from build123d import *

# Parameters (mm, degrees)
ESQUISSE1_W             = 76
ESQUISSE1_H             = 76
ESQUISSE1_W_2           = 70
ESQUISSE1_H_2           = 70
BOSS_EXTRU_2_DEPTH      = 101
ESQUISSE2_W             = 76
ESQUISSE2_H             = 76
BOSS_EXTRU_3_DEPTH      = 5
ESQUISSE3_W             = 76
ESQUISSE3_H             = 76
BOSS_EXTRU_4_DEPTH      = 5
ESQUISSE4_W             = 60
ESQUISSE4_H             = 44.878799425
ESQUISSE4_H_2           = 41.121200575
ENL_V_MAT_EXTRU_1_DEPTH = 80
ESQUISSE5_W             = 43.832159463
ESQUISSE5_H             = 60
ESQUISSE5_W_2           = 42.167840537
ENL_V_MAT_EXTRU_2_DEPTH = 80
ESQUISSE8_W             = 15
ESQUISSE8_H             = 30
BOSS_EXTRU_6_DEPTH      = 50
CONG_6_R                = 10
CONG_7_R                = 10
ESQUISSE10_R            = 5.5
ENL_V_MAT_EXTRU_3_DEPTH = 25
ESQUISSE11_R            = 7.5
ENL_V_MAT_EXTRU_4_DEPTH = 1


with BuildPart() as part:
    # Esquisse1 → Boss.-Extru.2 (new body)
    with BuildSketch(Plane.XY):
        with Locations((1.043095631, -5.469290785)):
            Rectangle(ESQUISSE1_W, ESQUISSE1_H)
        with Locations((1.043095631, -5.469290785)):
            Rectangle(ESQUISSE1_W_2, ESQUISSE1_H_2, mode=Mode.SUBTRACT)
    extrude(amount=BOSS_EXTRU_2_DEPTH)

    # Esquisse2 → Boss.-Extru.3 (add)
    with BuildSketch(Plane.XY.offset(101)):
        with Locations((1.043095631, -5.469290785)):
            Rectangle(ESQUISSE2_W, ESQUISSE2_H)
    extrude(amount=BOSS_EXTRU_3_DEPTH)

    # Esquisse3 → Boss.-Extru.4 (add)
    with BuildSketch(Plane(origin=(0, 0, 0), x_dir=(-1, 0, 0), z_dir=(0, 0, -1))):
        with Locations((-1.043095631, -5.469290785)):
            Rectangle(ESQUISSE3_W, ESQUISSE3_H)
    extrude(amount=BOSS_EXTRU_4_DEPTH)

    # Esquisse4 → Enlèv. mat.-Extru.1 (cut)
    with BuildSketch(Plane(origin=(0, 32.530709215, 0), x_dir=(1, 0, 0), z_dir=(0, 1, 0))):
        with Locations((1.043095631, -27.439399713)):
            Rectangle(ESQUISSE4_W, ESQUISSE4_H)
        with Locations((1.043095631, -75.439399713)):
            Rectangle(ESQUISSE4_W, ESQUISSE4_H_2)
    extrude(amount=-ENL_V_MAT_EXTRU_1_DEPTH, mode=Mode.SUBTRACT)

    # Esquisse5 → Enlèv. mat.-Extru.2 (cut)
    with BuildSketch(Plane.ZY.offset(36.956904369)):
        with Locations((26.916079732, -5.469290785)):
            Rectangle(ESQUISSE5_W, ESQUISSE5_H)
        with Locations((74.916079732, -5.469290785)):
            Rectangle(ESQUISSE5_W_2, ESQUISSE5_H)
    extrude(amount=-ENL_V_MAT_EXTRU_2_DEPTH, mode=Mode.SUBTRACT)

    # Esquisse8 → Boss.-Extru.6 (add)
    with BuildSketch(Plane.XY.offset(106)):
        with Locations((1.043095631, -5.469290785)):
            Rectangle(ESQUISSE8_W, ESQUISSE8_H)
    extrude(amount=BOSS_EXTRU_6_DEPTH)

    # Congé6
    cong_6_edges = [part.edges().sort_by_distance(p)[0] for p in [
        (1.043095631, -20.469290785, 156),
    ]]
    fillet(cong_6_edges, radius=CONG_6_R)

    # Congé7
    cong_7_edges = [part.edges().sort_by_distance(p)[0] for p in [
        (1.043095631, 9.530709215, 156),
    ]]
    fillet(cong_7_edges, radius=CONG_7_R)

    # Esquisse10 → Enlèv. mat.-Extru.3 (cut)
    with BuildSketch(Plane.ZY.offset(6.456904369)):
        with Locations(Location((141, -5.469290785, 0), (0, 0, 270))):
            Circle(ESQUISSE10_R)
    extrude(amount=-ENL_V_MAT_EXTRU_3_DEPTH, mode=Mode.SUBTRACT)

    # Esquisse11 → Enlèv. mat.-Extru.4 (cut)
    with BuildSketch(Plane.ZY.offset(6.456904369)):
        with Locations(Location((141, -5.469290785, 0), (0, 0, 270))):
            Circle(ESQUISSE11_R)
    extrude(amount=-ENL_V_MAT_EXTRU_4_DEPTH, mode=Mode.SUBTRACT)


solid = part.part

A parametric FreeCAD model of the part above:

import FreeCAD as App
import Part
import Sketcher


def edges_at(feature, points):
    """Names of the edges that pass closest to the given points."""
    edges = feature.Shape.Edges
    near = lambda p: min(range(len(edges)), key=lambda i: edges[i].distToShape(Part.Vertex(*p))[0])
    return sorted({f"Edge{near(p) + 1}" for p in points})


def add_polygon(sketch, points):
    """Adds a closed chain of lines whose ends are joined by coincident constraints."""
    first, n = sketch.GeometryCount, len(points)
    for a, b in zip(points, points[1:] + points[:1]):
        sketch.addGeometry(Part.LineSegment(App.Vector(*a, 0), App.Vector(*b, 0)), False)
    for i in range(n):
        sketch.addConstraint(Sketcher.Constraint("Coincident", first + i, 2, first + (i + 1) % n, 1))

doc = App.newDocument("Part")
body = doc.addObject("PartDesign::Body", "Body")

sketch1 = body.newObject("Sketcher::SketchObject", "Sketch")
sketch1.AttachmentSupport = (doc.getObject("XY_Plane"), [""])
sketch1.MapMode = "FlatFace"
add_polygon(sketch1, [(-37, 33), (-37, -43), (39, -43), (39, 33)])
add_polygon(sketch1, [(36, -40), (-34, -40), (-34, 30), (36, 30)])
sketch1.addConstraint(Sketcher.Constraint("Vertical", 0))
sketch1.addConstraint(Sketcher.Constraint("Horizontal", 1))
sketch1.addConstraint(Sketcher.Constraint("Vertical", 2))
sketch1.addConstraint(Sketcher.Constraint("Horizontal", 3))
sketch1.addConstraint(Sketcher.Constraint("Horizontal", 4))
sketch1.addConstraint(Sketcher.Constraint("Vertical", 5))
sketch1.addConstraint(Sketcher.Constraint("Horizontal", 6))
sketch1.addConstraint(Sketcher.Constraint("Vertical", 7))
sketch1.addConstraint(Sketcher.Constraint("Equal", 3, 0))
sketch1.addConstraint(Sketcher.Constraint("Equal", 6, 5))
sketch1.addConstraint(Sketcher.Constraint("DistanceX", 1, 1, 1, 2, 76.0))
sketch1.addConstraint(Sketcher.Constraint("DistanceX", 4, 2, 4, 1, 70.0))
sketch1.addConstraint(Sketcher.Constraint("DistanceX", 0, 2, 4, 2, 3.0))
sketch1.addConstraint(Sketcher.Constraint("DistanceY", 0, 2, 4, 2, 3.0))
sketch1.addConstraint(Sketcher.Constraint("DistanceY", 0, 2, -1, 1, 43.469291))
sketch1.addConstraint(Sketcher.Constraint("DistanceX", 0, 2, -1, 1, 36.956904))
pad1 = body.newObject("PartDesign::Pad", "Pad")
pad1.Profile = sketch1
pad1.Length = 101

sketch2 = body.newObject("Sketcher::SketchObject", "Sketch001")
sketch2.AttachmentSupport = (doc.getObject("XY_Plane"), [""])
sketch2.MapMode = "FlatFace"
sketch2.AttachmentOffset = App.Placement(App.Vector(0, 0, 101), App.Rotation())
add_polygon(sketch2, [(-37, 33), (-37, -43), (39, -43), (39, 33)])
sketch2.addConstraint(Sketcher.Constraint("Vertical", 0))
sketch2.addConstraint(Sketcher.Constraint("Horizontal", 1))
sketch2.addConstraint(Sketcher.Constraint("Vertical", 2))
sketch2.addConstraint(Sketcher.Constraint("Horizontal", 3))
sketch2.addConstraint(Sketcher.Constraint("Equal", 3, 0))
sketch2.addConstraint(Sketcher.Constraint("DistanceX", 1, 1, 1, 2, 76.0))
sketch2.addConstraint(Sketcher.Constraint("DistanceY", 0, 2, -1, 1, 43.469291))
sketch2.addConstraint(Sketcher.Constraint("DistanceX", 0, 2, -1, 1, 36.956904))
pad2 = body.newObject("PartDesign::Pad", "Pad001")
pad2.Profile = sketch2
pad2.Length = 5

sketch3 = body.newObject("Sketcher::SketchObject", "Sketch002")
sketch3.AttachmentSupport = (doc.getObject("XY_Plane"), [""])
sketch3.MapMode = "FlatFace"
add_polygon(sketch3, [(39, 33), (39, -43), (-37, -43), (-37, 33)])
sketch3.addConstraint(Sketcher.Constraint("Vertical", 0))
sketch3.addConstraint(Sketcher.Constraint("Horizontal", 1))
sketch3.addConstraint(Sketcher.Constraint("Vertical", 2))
sketch3.addConstraint(Sketcher.Constraint("Horizontal", 3))
sketch3.addConstraint(Sketcher.Constraint("Equal", 3, 0))
sketch3.addConstraint(Sketcher.Constraint("DistanceX", 1, 2, 1, 1, 76.0))
sketch3.addConstraint(Sketcher.Constraint("DistanceY", 0, 2, -1, 1, 43.469291))
sketch3.addConstraint(Sketcher.Constraint("DistanceX", -1, 1, 0, 2, 39.043096))
pad3 = body.newObject("PartDesign::Pad", "Pad002")
pad3.Profile = sketch3
pad3.Length = 5
pad3.Reversed = True

sketch4 = body.newObject("Sketcher::SketchObject", "Sketch003")
sketch4.AttachmentSupport = (doc.getObject("XZ_Plane"), [""])
sketch4.MapMode = "FlatFace"
sketch4.AttachmentOffset = App.Placement(App.Vector(0, 0, -32.530709), App.Rotation())
add_polygon(sketch4, [(-29, 5), (-29, 50), (31, 50), (31, 5)])
add_polygon(sketch4, [(-29, 55), (-29, 96), (31, 96), (31, 55)])
sketch4.addConstraint(Sketcher.Constraint("Vertical", 0))
sketch4.addConstraint(Sketcher.Constraint("Horizontal", 1))
sketch4.addConstraint(Sketcher.Constraint("Vertical", 2))
sketch4.addConstraint(Sketcher.Constraint("Horizontal", 3))
sketch4.addConstraint(Sketcher.Constraint("Vertical", 4))
sketch4.addConstraint(Sketcher.Constraint("Horizontal", 5))
sketch4.addConstraint(Sketcher.Constraint("Vertical", 6))
sketch4.addConstraint(Sketcher.Constraint("Horizontal", 7))
sketch4.addConstraint(Sketcher.Constraint("Vertical", 3, 2, 4, 2))
sketch4.addConstraint(Sketcher.Constraint("Vertical", 2, 2, 5, 2))
sketch4.addConstraint(Sketcher.Constraint("DistanceX", 1, 1, 1, 2, 60.0))
sketch4.addConstraint(Sketcher.Constraint("DistanceY", -1, 1, 2, 2, 5.0))
sketch4.addConstraint(Sketcher.Constraint("DistanceY", -1, 1, 4, 2, 96.0))
sketch4.addConstraint(Sketcher.Constraint("DistanceY", 1, 2, 6, 2, 5.0))
sketch4.addConstraint(Sketcher.Constraint("DistanceY", 0, 1, 0, 2, 44.878799))
sketch4.addConstraint(Sketcher.Constraint("DistanceX", 0, 2, -1, 1, 28.956904))
pocket1 = body.newObject("PartDesign::Pocket", "Pocket")
pocket1.Profile = sketch4
pocket1.Length = 80
pocket1.Reversed = True

sketch5 = body.newObject("Sketcher::SketchObject", "Sketch004")
sketch5.AttachmentSupport = (doc.getObject("YZ_Plane"), [""])
sketch5.MapMode = "FlatFace"
sketch5.AttachmentOffset = App.Placement(App.Vector(0, 0, -36.956904), App.Rotation())
add_polygon(sketch5, [(25, 5), (-35, 5), (-35, 49), (25, 49)])
add_polygon(sketch5, [(25, 54), (-35, 54), (-35, 96), (25, 96)])
sketch5.addConstraint(Sketcher.Constraint("Horizontal", 0))
sketch5.addConstraint(Sketcher.Constraint("Vertical", 1))
sketch5.addConstraint(Sketcher.Constraint("Horizontal", 2))
sketch5.addConstraint(Sketcher.Constraint("Vertical", 3))
sketch5.addConstraint(Sketcher.Constraint("Horizontal", 4))
sketch5.addConstraint(Sketcher.Constraint("Vertical", 5))
sketch5.addConstraint(Sketcher.Constraint("Horizontal", 6))
sketch5.addConstraint(Sketcher.Constraint("Vertical", 7))
sketch5.addConstraint(Sketcher.Constraint("Vertical", 1, 2, 4, 2))
sketch5.addConstraint(Sketcher.Constraint("Vertical", 3, 2, 6, 2))
sketch5.addConstraint(Sketcher.Constraint("DistanceX", 0, 2, 0, 1, 60.0))
sketch5.addConstraint(Sketcher.Constraint("DistanceY", -1, 1, 0, 2, 5.0))
sketch5.addConstraint(Sketcher.Constraint("DistanceY", -1, 1, 5, 2, 96.0))
sketch5.addConstraint(Sketcher.Constraint("DistanceY", 1, 2, 4, 2, 5.0))
sketch5.addConstraint(Sketcher.Constraint("DistanceY", 1, 1, 1, 2, 43.832159))
sketch5.addConstraint(Sketcher.Constraint("DistanceX", 0, 2, -1, 1, 35.469291))
pocket2 = body.newObject("PartDesign::Pocket", "Pocket001")
pocket2.Profile = sketch5
pocket2.Length = 80
pocket2.Reversed = True

sketch6 = body.newObject("Sketcher::SketchObject", "Sketch005")
sketch6.AttachmentSupport = (doc.getObject("XY_Plane"), [""])
sketch6.MapMode = "FlatFace"
sketch6.AttachmentOffset = App.Placement(App.Vector(0, 0, 106), App.Rotation())
add_polygon(sketch6, [(-6, 10), (-6, -20), (9, -20), (9, 10)])
sketch6.addConstraint(Sketcher.Constraint("Vertical", 0))
sketch6.addConstraint(Sketcher.Constraint("Horizontal", 1))
sketch6.addConstraint(Sketcher.Constraint("Vertical", 2))
sketch6.addConstraint(Sketcher.Constraint("Horizontal", 3))
sketch6.addConstraint(Sketcher.Constraint("DistanceX", 1, 1, 1, 2, 15.0))
sketch6.addConstraint(Sketcher.Constraint("DistanceY", 0, 2, 0, 1, 30.0))
sketch6.addConstraint(Sketcher.Constraint("DistanceY", 0, 2, -1, 1, 20.469291))
sketch6.addConstraint(Sketcher.Constraint("DistanceX", 0, 2, -1, 1, 6.456904))
pad4 = body.newObject("PartDesign::Pad", "Pad003")
pad4.Profile = sketch6
pad4.Length = 50
doc.recompute()

fillet = body.newObject("PartDesign::Fillet", "Fillet")
fillet.Base = (pad4, edges_at(pad4, [(1.043, -20.469, 156)]))
fillet.Radius = 10
doc.recompute()

fillet2 = body.newObject("PartDesign::Fillet", "Fillet001")
fillet2.Base = (fillet, edges_at(fillet, [(1.043, 9.531, 156)]))
fillet2.Radius = 10

sketch7 = body.newObject("Sketcher::SketchObject", "Sketch006")
sketch7.AttachmentSupport = (doc.getObject("YZ_Plane"), [""])
sketch7.MapMode = "FlatFace"
sketch7.AttachmentOffset = App.Placement(App.Vector(0, 0, -6.456904), App.Rotation())
sketch7.addGeometry(Part.Circle(App.Vector(-5, 141, 0), App.Vector(0, 0, 1), 6), False)
sketch7.addConstraint(Sketcher.Constraint("Diameter", 0, 11.0))
sketch7.addConstraint(Sketcher.Constraint("DistanceY", -1, 1, 0, 3, 141.0))
sketch7.addConstraint(Sketcher.Constraint("DistanceX", 0, 3, -1, 1, 5.469291))
pocket3 = body.newObject("PartDesign::Pocket", "Pocket002")
pocket3.Profile = sketch7
pocket3.Length = 25
pocket3.Reversed = True

sketch8 = body.newObject("Sketcher::SketchObject", "Sketch007")
sketch8.AttachmentSupport = (doc.getObject("YZ_Plane"), [""])
sketch8.MapMode = "FlatFace"
sketch8.AttachmentOffset = App.Placement(App.Vector(0, 0, -6.456904), App.Rotation())
sketch8.addGeometry(Part.Circle(App.Vector(-5, 141, 0), App.Vector(0, 0, 1), 8), False)
sketch8.addConstraint(Sketcher.Constraint("Diameter", 0, 15.0))
sketch8.addConstraint(Sketcher.Constraint("DistanceY", -1, 1, 0, 3, 141.0))
sketch8.addConstraint(Sketcher.Constraint("DistanceX", 0, 3, -1, 1, 5.469291))
pocket4 = body.newObject("PartDesign::Pocket", "Pocket003")
pocket4.Profile = sketch8
pocket4.Length = 1
pocket4.Reversed = True

doc.recompute()
